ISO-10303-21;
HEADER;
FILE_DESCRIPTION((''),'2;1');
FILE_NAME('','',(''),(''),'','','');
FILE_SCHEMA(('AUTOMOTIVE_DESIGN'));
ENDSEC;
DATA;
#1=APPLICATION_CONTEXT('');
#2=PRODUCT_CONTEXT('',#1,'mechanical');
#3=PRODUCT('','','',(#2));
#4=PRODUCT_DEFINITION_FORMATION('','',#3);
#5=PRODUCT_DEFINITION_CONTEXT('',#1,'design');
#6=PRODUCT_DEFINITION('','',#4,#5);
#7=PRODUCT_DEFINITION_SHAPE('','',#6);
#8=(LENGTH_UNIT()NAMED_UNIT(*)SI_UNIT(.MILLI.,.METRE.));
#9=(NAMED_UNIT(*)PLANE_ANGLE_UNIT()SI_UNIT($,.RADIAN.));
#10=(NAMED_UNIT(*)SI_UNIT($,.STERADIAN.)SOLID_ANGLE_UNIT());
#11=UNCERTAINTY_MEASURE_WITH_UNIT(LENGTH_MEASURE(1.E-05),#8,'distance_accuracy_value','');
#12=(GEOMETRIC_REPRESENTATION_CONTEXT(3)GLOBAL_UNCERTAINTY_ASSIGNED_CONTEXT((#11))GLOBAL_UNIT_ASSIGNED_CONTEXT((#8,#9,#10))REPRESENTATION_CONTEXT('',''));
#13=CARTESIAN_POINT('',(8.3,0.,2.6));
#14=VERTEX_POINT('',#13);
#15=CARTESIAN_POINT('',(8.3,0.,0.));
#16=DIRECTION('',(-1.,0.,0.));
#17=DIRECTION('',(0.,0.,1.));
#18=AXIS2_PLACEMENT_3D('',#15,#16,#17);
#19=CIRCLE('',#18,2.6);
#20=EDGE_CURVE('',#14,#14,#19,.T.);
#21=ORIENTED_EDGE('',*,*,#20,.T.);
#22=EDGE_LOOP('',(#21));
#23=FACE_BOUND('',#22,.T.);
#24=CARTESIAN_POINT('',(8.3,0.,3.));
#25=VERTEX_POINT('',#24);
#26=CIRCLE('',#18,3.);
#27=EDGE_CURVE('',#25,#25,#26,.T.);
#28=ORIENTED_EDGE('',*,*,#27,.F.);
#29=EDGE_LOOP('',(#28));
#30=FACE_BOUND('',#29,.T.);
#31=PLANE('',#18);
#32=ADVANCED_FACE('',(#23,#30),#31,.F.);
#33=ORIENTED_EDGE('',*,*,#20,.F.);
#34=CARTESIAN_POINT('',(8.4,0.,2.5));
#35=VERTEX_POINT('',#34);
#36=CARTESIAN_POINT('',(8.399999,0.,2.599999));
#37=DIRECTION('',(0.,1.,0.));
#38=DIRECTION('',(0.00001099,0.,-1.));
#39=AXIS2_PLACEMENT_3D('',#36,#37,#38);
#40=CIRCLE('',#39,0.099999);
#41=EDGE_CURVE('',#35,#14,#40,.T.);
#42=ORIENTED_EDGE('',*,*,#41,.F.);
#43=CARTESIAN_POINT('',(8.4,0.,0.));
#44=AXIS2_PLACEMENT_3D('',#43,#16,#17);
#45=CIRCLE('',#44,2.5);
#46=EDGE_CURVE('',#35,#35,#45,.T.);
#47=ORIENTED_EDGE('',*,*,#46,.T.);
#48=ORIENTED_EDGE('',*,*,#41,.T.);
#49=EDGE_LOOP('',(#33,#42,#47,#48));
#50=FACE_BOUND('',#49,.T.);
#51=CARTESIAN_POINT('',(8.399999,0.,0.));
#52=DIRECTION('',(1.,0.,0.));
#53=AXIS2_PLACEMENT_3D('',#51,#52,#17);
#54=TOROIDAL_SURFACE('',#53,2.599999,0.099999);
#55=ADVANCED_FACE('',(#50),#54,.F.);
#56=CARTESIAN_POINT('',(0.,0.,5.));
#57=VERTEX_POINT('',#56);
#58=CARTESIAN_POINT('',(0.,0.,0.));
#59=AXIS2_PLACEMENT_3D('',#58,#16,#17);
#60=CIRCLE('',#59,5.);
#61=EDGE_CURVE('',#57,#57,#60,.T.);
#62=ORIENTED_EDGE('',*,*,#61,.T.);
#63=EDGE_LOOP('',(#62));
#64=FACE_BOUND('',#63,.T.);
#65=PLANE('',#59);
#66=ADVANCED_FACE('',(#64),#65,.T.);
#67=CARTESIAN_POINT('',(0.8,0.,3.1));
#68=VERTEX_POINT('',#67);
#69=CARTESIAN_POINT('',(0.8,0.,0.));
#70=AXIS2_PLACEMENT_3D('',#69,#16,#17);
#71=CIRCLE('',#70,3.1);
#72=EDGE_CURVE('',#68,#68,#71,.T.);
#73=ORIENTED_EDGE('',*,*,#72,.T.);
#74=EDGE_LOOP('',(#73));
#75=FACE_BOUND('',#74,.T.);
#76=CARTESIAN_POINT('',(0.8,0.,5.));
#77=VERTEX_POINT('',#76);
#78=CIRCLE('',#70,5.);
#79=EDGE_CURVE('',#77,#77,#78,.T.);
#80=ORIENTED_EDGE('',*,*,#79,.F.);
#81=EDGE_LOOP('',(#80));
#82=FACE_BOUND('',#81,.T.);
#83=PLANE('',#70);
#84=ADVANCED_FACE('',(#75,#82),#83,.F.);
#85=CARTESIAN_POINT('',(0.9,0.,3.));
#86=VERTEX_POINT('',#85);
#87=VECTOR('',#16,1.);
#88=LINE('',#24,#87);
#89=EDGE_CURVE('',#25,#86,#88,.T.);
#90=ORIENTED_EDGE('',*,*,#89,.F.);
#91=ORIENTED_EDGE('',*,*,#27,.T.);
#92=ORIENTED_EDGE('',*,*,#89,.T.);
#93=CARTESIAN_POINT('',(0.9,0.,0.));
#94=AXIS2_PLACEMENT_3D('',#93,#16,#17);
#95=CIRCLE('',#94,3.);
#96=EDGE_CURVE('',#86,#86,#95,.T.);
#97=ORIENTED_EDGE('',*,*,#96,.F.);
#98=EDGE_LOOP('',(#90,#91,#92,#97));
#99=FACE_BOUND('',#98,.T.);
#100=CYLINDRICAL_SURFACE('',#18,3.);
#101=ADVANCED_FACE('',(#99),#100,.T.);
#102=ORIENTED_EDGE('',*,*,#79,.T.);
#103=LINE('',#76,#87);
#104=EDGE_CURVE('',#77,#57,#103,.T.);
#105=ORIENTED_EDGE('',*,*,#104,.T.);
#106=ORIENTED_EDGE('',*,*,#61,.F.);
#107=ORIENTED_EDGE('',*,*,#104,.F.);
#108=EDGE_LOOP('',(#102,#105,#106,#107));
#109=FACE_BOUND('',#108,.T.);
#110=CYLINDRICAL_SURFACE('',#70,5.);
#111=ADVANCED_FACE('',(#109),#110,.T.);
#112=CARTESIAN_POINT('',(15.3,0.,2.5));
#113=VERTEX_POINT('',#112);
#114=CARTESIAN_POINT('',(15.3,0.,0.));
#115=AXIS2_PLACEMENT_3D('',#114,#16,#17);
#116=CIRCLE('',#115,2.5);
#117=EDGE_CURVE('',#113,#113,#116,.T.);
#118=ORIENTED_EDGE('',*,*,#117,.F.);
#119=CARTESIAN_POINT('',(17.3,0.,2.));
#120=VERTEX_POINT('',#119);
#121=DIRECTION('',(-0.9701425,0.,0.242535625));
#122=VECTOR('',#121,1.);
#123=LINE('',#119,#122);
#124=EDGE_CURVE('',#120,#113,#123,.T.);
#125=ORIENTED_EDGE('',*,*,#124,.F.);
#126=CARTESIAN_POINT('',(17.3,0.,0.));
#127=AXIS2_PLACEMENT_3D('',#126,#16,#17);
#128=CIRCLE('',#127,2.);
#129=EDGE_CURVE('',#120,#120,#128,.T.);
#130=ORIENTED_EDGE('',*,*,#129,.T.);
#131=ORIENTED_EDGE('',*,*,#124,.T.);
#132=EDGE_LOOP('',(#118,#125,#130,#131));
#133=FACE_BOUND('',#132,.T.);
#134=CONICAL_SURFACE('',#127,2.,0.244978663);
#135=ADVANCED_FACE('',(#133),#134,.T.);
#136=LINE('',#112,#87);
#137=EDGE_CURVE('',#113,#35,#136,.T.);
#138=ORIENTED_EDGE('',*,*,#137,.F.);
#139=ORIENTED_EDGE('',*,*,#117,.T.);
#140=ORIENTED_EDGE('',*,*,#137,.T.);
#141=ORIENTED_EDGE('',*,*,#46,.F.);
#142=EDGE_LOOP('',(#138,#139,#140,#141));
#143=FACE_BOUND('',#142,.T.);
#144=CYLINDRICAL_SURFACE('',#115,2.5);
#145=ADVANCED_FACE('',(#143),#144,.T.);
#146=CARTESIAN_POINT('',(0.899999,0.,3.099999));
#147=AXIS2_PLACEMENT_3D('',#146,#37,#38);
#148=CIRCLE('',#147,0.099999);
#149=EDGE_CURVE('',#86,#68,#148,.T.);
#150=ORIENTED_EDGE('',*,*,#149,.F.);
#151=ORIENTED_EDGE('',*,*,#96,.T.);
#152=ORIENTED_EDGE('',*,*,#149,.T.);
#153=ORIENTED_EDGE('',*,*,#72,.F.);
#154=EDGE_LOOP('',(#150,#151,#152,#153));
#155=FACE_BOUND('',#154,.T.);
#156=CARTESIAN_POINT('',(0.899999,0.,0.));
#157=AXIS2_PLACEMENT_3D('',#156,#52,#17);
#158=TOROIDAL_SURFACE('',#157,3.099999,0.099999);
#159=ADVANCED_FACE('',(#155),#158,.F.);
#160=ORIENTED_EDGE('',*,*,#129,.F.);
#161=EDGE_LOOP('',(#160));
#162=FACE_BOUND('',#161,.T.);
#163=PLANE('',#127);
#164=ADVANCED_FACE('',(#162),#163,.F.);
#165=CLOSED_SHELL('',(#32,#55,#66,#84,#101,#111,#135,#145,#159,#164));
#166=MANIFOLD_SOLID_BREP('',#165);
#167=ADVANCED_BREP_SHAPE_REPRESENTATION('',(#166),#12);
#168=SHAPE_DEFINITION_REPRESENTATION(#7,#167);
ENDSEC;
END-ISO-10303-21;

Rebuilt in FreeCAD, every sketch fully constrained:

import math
import FreeCAD as App
import Part
import Sketcher

doc = App.newDocument("Part")
body = doc.addObject("PartDesign::Body", "Body")

sketch1 = body.newObject("Sketcher::SketchObject", "Sketch")
sketch1.AttachmentSupport = (doc.getObject("XZ_Plane"), [""])
sketch1.MapMode = "FlatFace"
sketch1.addGeometry([
    Part.LineSegment(App.Vector(0, 5, 0), App.Vector(0, 0, 0)),
    Part.LineSegment(App.Vector(0, 0, 0), App.Vector(17.3, 0, 0)),
    Part.LineSegment(App.Vector(17.3, 0, 0), App.Vector(17.3, 2, 0)),
    Part.LineSegment(App.Vector(17.3, 2, 0), App.Vector(15.3, 2.5, 0)),
    Part.LineSegment(App.Vector(15.3, 2.5, 0), App.Vector(8.4, 2.5, 0)),
    Part.ArcOfCircle(Part.Circle(App.Vector(8.399999, 2.599999, 0), App.Vector(0, 0, 1), 0.099999), math.radians(179.99937), math.radians(270.00063)),
    Part.LineSegment(App.Vector(8.3, 2.6, 0), App.Vector(8.3, 3, 0)),
    Part.LineSegment(App.Vector(8.3, 3, 0), App.Vector(0.9, 3, 0)),
    Part.ArcOfCircle(Part.Circle(App.Vector(0.899999, 3.099999, 0), App.Vector(0, 0, 1), 0.099999), math.radians(179.99937), math.radians(270.00063)),
    Part.LineSegment(App.Vector(0.8, 3.1, 0), App.Vector(0.8, 5, 0)),
    Part.LineSegment(App.Vector(0.8, 5, 0), App.Vector(0, 5, 0)),
], False)
sketch1.addConstraint([
    Sketcher.Constraint("Coincident", 0, 2, 1, 1),
    Sketcher.Constraint("Coincident", 1, 2, 2, 1),
    Sketcher.Constraint("Coincident", 2, 2, 3, 1),
    Sketcher.Constraint("Coincident", 3, 2, 4, 1),
    Sketcher.Constraint("Coincident", 4, 2, 5, 2),
    Sketcher.Constraint("Coincident", 5, 1, 6, 1),
    Sketcher.Constraint("Coincident", 6, 2, 7, 1),
    Sketcher.Constraint("Coincident", 7, 2, 8, 2),
    Sketcher.Constraint("Coincident", 8, 1, 9, 1),
    Sketcher.Constraint("Coincident", 9, 2, 10, 1),
    Sketcher.Constraint("Coincident", 10, 2, 0, 1),
    Sketcher.Constraint("Vertical", 0),
    Sketcher.Constraint("Horizontal", 1),
    Sketcher.Constraint("Vertical", 2),
    Sketcher.Constraint("Horizontal", 4),
    Sketcher.Constraint("Vertical", 6),
    Sketcher.Constraint("Horizontal", 7),
    Sketcher.Constraint("Vertical", 9),
    Sketcher.Constraint("Horizontal", 10),
    Sketcher.Constraint("Coincident", 0, 2, -1, 1),
    Sketcher.Constraint("Equal", 5, 8),
    Sketcher.Constraint("Vertical", 5, 3, 4, 2),
    Sketcher.Constraint("Vertical", 8, 3, 7, 2),
    Sketcher.Constraint("Radius", 5, 0.099999),
    Sketcher.Constraint("DistanceY", 0, 2, 0, 1, 5.0),
    Sketcher.Constraint("DistanceY", 2, 1, 2, 2, 2.0),
    Sketcher.Constraint("DistanceX", 1, 1, 1, 2, 17.3),
    Sketcher.Constraint("DistanceX", 4, 2, 4, 1, 6.9),
    Sketcher.Constraint("DistanceX", 7, 2, 7, 1, 7.4),
    Sketcher.Constraint("DistanceX", 10, 2, 10, 1, 0.8),
    Sketcher.Constraint("DistanceY", 6, 1, 6, 2, 0.4),
    Sketcher.Constraint("DistanceY", 9, 1, 9, 2, 1.9),
    Sketcher.Constraint("DistanceY", -1, 1, 6, 2, 3.0),
    Sketcher.Constraint("DistanceY", -1, 1, 5, 3, 2.599999),
])
revolution = body.newObject("PartDesign::Revolution", "Revolution")
revolution.Profile = sketch1
revolution.ReferenceAxis = (sketch1, ["H_Axis"])
revolution.Angle = 360

doc.recompute()
